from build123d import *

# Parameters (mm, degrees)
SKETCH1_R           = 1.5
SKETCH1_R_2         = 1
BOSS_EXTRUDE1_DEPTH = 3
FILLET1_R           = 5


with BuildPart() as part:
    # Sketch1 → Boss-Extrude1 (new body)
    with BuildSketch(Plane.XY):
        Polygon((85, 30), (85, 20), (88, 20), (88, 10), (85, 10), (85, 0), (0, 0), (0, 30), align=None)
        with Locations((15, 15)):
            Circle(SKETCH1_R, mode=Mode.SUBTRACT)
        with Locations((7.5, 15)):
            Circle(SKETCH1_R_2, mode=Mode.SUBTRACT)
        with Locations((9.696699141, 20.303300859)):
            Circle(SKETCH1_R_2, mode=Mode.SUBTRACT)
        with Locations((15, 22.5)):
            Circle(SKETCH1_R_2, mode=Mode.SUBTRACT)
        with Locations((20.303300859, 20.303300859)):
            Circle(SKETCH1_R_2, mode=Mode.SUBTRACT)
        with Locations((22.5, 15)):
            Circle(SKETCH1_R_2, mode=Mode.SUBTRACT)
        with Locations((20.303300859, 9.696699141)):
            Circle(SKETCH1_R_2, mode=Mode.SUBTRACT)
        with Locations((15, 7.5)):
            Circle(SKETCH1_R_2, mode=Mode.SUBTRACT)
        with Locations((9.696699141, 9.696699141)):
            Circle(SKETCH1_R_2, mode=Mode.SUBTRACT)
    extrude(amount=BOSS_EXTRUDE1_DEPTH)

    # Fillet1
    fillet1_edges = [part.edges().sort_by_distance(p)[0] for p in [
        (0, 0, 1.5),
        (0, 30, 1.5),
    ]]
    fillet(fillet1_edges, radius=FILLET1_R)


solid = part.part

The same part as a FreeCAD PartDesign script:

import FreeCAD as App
import Part
import Sketcher
Q = App.Units.Quantity


def edges_at(feature, points):
    """Names of the edges that pass closest to the given points."""
    edges = feature.Shape.Edges
    near = lambda p: min(range(len(edges)), key=lambda i: edges[i].distToShape(Part.Vertex(*p))[0])
    return sorted({f"Edge{near(p) + 1}" for p in points})


def add_polygon(sketch, points):
    """Adds a closed chain of lines whose ends are joined by coincident constraints."""
    first, n = sketch.GeometryCount, len(points)
    for a, b in zip(points, points[1:] + points[:1]):
        sketch.addGeometry(Part.LineSegment(App.Vector(*a, 0), App.Vector(*b, 0)), False)
    for i in range(n):
        sketch.addConstraint(Sketcher.Constraint("Coincident", first + i, 2, first + (i + 1) % n, 1))

doc = App.newDocument("Part")
body = doc.addObject("PartDesign::Body", "Body")

sketch1 = body.newObject("Sketcher::SketchObject", "Sketch")
sketch1.AttachmentSupport = (doc.getObject("XY_Plane"), [""])
sketch1.MapMode = "FlatFace"
add_polygon(sketch1, [(85, 20), (85, 30), (0, 30), (0, 0), (85, 0), (85, 10), (88, 10), (88, 20)])
sketch1.addGeometry(Part.Circle(App.Vector(20.303301, 9.696699, 0), App.Vector(0, 0, 1), 1), False)
sketch1.addGeometry(Part.Circle(App.Vector(15, 7.5, 0), App.Vector(0, 0, 1), 1), False)
sketch1.addGeometry(Part.Circle(App.Vector(9.696699, 9.696699, 0), App.Vector(0, 0, 1), 1), False)
sketch1.addGeometry(Part.Circle(App.Vector(22.5, 15, 0), App.Vector(0, 0, 1), 1), False)
sketch1.addGeometry(Part.Circle(App.Vector(20.303301, 20.303301, 0), App.Vector(0, 0, 1), 1), False)
sketch1.addGeometry(Part.Circle(App.Vector(15, 15, 0), App.Vector(0, 0, 1), 1.5), False)
sketch1.addGeometry(Part.Circle(App.Vector(7.5, 15, 0), App.Vector(0, 0, 1), 1), False)
sketch1.addGeometry(Part.Circle(App.Vector(15, 22.5, 0), App.Vector(0, 0, 1), 1), False)
sketch1.addGeometry(Part.Circle(App.Vector(9.696699, 20.303301, 0), App.Vector(0, 0, 1), 1), False)
sketch1.addConstraint(Sketcher.Constraint("Vertical", 0))
sketch1.addConstraint(Sketcher.Constraint("Horizontal", 1))
sketch1.addConstraint(Sketcher.Constraint("Vertical", 2))
sketch1.addConstraint(Sketcher.Constraint("Horizontal", 3))
sketch1.addConstraint(Sketcher.Constraint("Vertical", 4))
sketch1.addConstraint(Sketcher.Constraint("Horizontal", 5))
sketch1.addConstraint(Sketcher.Constraint("Vertical", 6))
sketch1.addConstraint(Sketcher.Constraint("Horizontal", 7))
sketch1.addConstraint(Sketcher.Constraint("Coincident", 2, 2, -1, 1))
sketch1.addConstraint(Sketcher.Constraint("Equal", 8, 9))
sketch1.addConstraint(Sketcher.Constraint("Equal", 9, 10))
sketch1.addConstraint(Sketcher.Constraint("Equal", 10, 11))
sketch1.addConstraint(Sketcher.Constraint("Equal", 11, 12))
sketch1.addConstraint(Sketcher.Constraint("Equal", 12, 14))
sketch1.addConstraint(Sketcher.Constraint("Equal", 14, 15))
sketch1.addConstraint(Sketcher.Constraint("Equal", 15, 16))
sketch1.addConstraint(Sketcher.Constraint("Horizontal", 8, 3, 10, 3))
sketch1.addConstraint(Sketcher.Constraint("Horizontal", 11, 3, 13, 3))
sketch1.addConstraint(Sketcher.Constraint("Horizontal", 13, 3, 14, 3))
sketch1.addConstraint(Sketcher.Constraint("Horizontal", 12, 3, 16, 3))
sketch1.addConstraint(Sketcher.Constraint("Vertical", 8, 3, 12, 3))
sketch1.addConstraint(Sketcher.Constraint("Vertical", 9, 3, 13, 3))
sketch1.addConstraint(Sketcher.Constraint("Vertical", 13, 3, 15, 3))
sketch1.addConstraint(Sketcher.Constraint("Vertical", 10, 3, 16, 3))
sketch1.addConstraint(Sketcher.Constraint("Vertical", 0, 2, 3, 2))
sketch1.addConstraint(Sketcher.Constraint("Equal", 0, 4))
sketch1.addConstraint(Sketcher.Constraint("Equal", 4, 6))
sketch1.addConstraint(Sketcher.Constraint("Diameter", 8, Q("2 mm")))
sketch1.addConstraint(Sketcher.Constraint("Diameter", 13, Q("3 mm")))
sketch1.addConstraint(Sketcher.Constraint("DistanceX", 1, 2, 1, 1, Q("85 mm")))
sketch1.addConstraint(Sketcher.Constraint("DistanceX", 5, 1, 5, 2, Q("3 mm")))
sketch1.addConstraint(Sketcher.Constraint("DistanceY", 0, 1, 0, 2, Q("10 mm")))
sketch1.addConstraint(Sketcher.Constraint("DistanceX", -1, 1, 9, 3, Q("15 mm")))
sketch1.addConstraint(Sketcher.Constraint("DistanceY", -1, 1, 11, 3, Q("15 mm")))
sketch1.addConstraint(Sketcher.Constraint("DistanceY", -1, 1, 9, 3, Q("7.5 mm")))
sketch1.addConstraint(Sketcher.Constraint("DistanceX", -1, 1, 11, 3, Q("22.5 mm")))
sketch1.addConstraint(Sketcher.Constraint("DistanceX", -1, 1, 14, 3, Q("7.5 mm")))
sketch1.addConstraint(Sketcher.Constraint("DistanceY", -1, 1, 15, 3, Q("22.5 mm")))
sketch1.addConstraint(Sketcher.Constraint("DistanceX", -1, 1, 8, 3, Q("20.303301 mm")))
sketch1.addConstraint(Sketcher.Constraint("DistanceY", -1, 1, 8, 3, Q("9.696699 mm")))
sketch1.addConstraint(Sketcher.Constraint("DistanceX", -1, 1, 10, 3, Q("9.696699 mm")))
sketch1.addConstraint(Sketcher.Constraint("DistanceY", -1, 1, 12, 3, Q("20.303301 mm")))
pad1 = body.newObject("PartDesign::Pad", "Pad")
pad1.Profile = sketch1
pad1.Length = 3
doc.recompute()

fillet = body.newObject("PartDesign::Fillet", "Fillet")
fillet.Base = (pad1, edges_at(pad1, [(0, 0, 1.5), (0, 30, 1.5)]))
fillet.Radius = 5

doc.recompute()
